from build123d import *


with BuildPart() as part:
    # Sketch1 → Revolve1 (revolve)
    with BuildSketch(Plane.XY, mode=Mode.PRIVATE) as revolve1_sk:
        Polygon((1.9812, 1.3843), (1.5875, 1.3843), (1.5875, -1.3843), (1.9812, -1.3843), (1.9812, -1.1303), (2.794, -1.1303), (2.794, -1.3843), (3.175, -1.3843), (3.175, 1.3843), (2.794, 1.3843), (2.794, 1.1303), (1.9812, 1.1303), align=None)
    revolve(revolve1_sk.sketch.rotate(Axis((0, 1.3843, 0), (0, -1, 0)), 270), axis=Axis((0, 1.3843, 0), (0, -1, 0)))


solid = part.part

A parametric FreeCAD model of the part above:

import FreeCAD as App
import Part
import Sketcher

V = App.Vector
Q = App.Units.Quantity

doc = App.newDocument("Part")
params = doc.addObject("Spreadsheet::Sheet", "Params")
for row, (alias, value) in enumerate([
    ("sketch1_height", "0.01 in"),
    ("sketch1_width", "0.032 in"),
    ("sketch1_width2", "0.015 in"),
    ("sketch1_height2", "0.109 in"),
    ("revolution_angle", "360 deg"),
], start=1):
    params.set(f"A{row}", alias)
    params.set(f"B{row}", "=" + value)
    params.setAlias(f"B{row}", alias)

body = doc.addObject("PartDesign::Body", "Body")

# Sketch on XY plane
sketch1 = body.newObject("Sketcher::SketchObject", "Sketch")
sketch1.AttachmentSupport = (doc.getObject("XY_Plane"), [""])
sketch1.MapMode = "FlatFace"
sketch1.addGeometry(Part.LineSegment(V(1.9812, 1.3843, 0), V(1.5875, 1.3843, 0)), False)
sketch1.addGeometry(Part.LineSegment(V(1.5875, 1.3843, 0), V(1.5875, -1.3843, 0)), False)
sketch1.addGeometry(Part.LineSegment(V(1.5875, -1.3843, 0), V(1.9812, -1.3843, 0)), False)
sketch1.addGeometry(Part.LineSegment(V(1.9812, -1.3843, 0), V(1.9812, -1.1303, 0)), False)
sketch1.addGeometry(Part.LineSegment(V(1.9812, -1.1303, 0), V(2.794, -1.1303, 0)), False)
sketch1.addGeometry(Part.LineSegment(V(2.794, -1.1303, 0), V(2.794, -1.3843, 0)), False)
sketch1.addGeometry(Part.LineSegment(V(2.794, -1.3843, 0), V(3.175, -1.3843, 0)), False)
sketch1.addGeometry(Part.LineSegment(V(3.175, -1.3843, 0), V(3.175, 1.3843, 0)), False)
sketch1.addGeometry(Part.LineSegment(V(3.175, 1.3843, 0), V(2.794, 1.3843, 0)), False)
sketch1.addGeometry(Part.LineSegment(V(2.794, 1.3843, 0), V(2.794, 1.1303, 0)), False)
sketch1.addGeometry(Part.LineSegment(V(2.794, 1.1303, 0), V(1.9812, 1.1303, 0)), False)
sketch1.addGeometry(Part.LineSegment(V(1.9812, 1.1303, 0), V(1.9812, 1.3843, 0)), False)
sketch1.addConstraint(Sketcher.Constraint("Coincident", 0, 2, 1, 1))
sketch1.addConstraint(Sketcher.Constraint("Coincident", 1, 2, 2, 1))
sketch1.addConstraint(Sketcher.Constraint("Coincident", 2, 2, 3, 1))
sketch1.addConstraint(Sketcher.Constraint("Coincident", 3, 2, 4, 1))
sketch1.addConstraint(Sketcher.Constraint("Coincident", 4, 2, 5, 1))
sketch1.addConstraint(Sketcher.Constraint("Coincident", 5, 2, 6, 1))
sketch1.addConstraint(Sketcher.Constraint("Coincident", 6, 2, 7, 1))
sketch1.addConstraint(Sketcher.Constraint("Coincident", 7, 2, 8, 1))
sketch1.addConstraint(Sketcher.Constraint("Coincident", 8, 2, 9, 1))
sketch1.addConstraint(Sketcher.Constraint("Coincident", 9, 2, 10, 1))
sketch1.addConstraint(Sketcher.Constraint("Coincident", 10, 2, 11, 1))
sketch1.addConstraint(Sketcher.Constraint("Coincident", 11, 2, 0, 1))
sketch1.addConstraint(Sketcher.Constraint("Horizontal", 0))
sketch1.addConstraint(Sketcher.Constraint("Vertical", 1))
sketch1.addConstraint(Sketcher.Constraint("Horizontal", 2))
sketch1.addConstraint(Sketcher.Constraint("Vertical", 3))
sketch1.addConstraint(Sketcher.Constraint("Horizontal", 4))
sketch1.addConstraint(Sketcher.Constraint("Vertical", 5))
sketch1.addConstraint(Sketcher.Constraint("Horizontal", 6))
sketch1.addConstraint(Sketcher.Constraint("Vertical", 7))
sketch1.addConstraint(Sketcher.Constraint("Horizontal", 8))
sketch1.addConstraint(Sketcher.Constraint("Vertical", 9))
sketch1.addConstraint(Sketcher.Constraint("Horizontal", 10))
sketch1.addConstraint(Sketcher.Constraint("Vertical", 11))
sketch1.addConstraint(Sketcher.Constraint("Symmetric", 5, 2, 8, 2, -1))
sketch1.addConstraint(Sketcher.Constraint("Symmetric", 3, 2, 10, 2, -1))
sketch1.addConstraint(Sketcher.Constraint("Horizontal", 2, 2, 5, 2))
sketch1.addConstraint(Sketcher.Constraint("Horizontal", 0, 2, 7, 2))
sketch1.addConstraint(Sketcher.Constraint("DistanceY", 3, 1, 3, 2, Q("0.01 in")))
sketch1.addConstraint(Sketcher.Constraint("DistanceX", 4, 1, 4, 2, Q("0.032 in")))
sketch1.addConstraint(Sketcher.Constraint("DistanceX", 6, 1, 6, 2, Q("0.015 in")))
sketch1.addConstraint(Sketcher.Constraint("DistanceY", 1, 2, 1, 1, Q("0.109 in")))
sketch1.addConstraint(Sketcher.Constraint("DistanceX", -1, 1, 4, 2, Q("0.11 in")))
sketch1.addConstraint(Sketcher.Constraint("DistanceX", 0, 2, 0, 1, Q("0.0155 in")))
sketch1.setExpression("Constraints[28]", "Params.sketch1_height")
sketch1.setExpression("Constraints[29]", "Params.sketch1_width")
sketch1.setExpression("Constraints[30]", "Params.sketch1_width2")
sketch1.setExpression("Constraints[31]", "Params.sketch1_height2")
revolution = body.newObject("PartDesign::Revolution", "Revolution")
revolution.Profile = sketch1
revolution.ReferenceAxis = (sketch1, ["V_Axis"])
revolution.setExpression("Angle", "Params.revolution_angle")

doc.recompute()
